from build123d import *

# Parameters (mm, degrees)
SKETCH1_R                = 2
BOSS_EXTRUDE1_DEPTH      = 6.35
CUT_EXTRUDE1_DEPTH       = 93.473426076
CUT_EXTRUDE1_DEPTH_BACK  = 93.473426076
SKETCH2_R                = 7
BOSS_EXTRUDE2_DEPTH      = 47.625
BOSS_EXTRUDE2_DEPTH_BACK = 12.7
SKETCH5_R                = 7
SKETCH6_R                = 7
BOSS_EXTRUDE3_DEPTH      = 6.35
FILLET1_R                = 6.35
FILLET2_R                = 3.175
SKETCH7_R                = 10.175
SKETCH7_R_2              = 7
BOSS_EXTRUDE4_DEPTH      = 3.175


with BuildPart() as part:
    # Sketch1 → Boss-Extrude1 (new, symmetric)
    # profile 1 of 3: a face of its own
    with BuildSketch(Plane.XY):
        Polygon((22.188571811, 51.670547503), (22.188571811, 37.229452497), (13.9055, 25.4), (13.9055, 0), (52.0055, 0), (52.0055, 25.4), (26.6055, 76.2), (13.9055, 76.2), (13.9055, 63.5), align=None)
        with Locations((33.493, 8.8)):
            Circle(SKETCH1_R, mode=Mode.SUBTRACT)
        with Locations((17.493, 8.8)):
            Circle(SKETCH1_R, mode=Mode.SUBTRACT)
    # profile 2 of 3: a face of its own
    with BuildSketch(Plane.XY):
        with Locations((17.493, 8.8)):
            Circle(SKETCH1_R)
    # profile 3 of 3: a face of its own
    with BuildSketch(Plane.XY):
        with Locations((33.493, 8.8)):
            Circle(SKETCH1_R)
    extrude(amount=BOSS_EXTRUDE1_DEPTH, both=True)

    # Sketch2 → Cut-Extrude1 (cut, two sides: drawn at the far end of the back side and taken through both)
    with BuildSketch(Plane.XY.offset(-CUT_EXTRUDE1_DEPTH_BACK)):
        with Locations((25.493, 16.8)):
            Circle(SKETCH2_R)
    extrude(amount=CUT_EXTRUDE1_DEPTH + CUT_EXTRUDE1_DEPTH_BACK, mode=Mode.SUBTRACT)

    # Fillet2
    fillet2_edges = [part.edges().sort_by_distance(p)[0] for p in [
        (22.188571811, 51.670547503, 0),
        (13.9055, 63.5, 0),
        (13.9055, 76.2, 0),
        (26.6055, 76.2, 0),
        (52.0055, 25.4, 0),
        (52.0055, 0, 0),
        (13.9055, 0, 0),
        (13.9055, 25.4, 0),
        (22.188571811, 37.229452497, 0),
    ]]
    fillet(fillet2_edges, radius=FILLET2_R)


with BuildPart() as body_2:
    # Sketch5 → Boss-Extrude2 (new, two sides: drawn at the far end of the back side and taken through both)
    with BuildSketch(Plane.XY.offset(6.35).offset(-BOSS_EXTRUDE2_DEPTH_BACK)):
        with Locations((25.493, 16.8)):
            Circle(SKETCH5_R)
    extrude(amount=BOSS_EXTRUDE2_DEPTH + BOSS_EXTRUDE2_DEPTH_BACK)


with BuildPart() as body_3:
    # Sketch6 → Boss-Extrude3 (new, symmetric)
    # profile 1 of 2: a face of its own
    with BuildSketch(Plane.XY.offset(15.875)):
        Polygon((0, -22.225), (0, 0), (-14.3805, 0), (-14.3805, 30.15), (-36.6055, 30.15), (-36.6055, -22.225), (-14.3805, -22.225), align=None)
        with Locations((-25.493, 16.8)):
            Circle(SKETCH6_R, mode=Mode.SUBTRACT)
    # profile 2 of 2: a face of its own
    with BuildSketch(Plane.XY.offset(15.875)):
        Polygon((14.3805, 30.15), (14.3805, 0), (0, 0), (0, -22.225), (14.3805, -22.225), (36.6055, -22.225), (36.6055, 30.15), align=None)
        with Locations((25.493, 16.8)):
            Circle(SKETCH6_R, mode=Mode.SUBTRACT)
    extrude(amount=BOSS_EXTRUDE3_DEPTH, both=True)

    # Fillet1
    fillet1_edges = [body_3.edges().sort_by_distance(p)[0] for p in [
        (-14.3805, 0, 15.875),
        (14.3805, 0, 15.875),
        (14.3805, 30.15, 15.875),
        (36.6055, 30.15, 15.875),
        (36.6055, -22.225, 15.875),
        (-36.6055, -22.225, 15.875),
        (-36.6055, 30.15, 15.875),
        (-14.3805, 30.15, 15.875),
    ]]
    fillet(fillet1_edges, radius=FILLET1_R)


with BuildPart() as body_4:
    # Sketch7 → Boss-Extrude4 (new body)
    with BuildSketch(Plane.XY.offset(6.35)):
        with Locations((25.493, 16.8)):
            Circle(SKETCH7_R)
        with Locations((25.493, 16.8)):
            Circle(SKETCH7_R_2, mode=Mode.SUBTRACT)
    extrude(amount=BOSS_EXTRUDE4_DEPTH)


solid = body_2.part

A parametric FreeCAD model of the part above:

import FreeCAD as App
import Part
import Sketcher

V = App.Vector
Q = App.Units.Quantity


def edges_at(feature, points):
    """Names of the edges that pass closest to the given points."""
    edges = feature.Shape.Edges
    near = lambda p: min(range(len(edges)), key=lambda i: edges[i].distToShape(Part.Vertex(*p))[0])
    return sorted({f"Edge{near(p) + 1}" for p in points})

doc = App.newDocument("Part")
body = doc.addObject("PartDesign::Body", "Body")

sketch1 = doc.addObject("Sketcher::SketchObject", "Sketch")
body.addObject(sketch1)
sketch1.AttachmentSupport = (doc.XY_Plane, [""])
sketch1.MapMode = "FlatFace"
sketch1.addGeometry([
    Part.LineSegment(V(22, 52, 0), V(22, 37, 0)),
    Part.LineSegment(V(22, 37, 0), V(14, 25, 0)),
    Part.LineSegment(V(14, 25, 0), V(14, 0, 0)),
    Part.LineSegment(V(14, 0, 0), V(52, 0, 0)),
    Part.LineSegment(V(52, 0, 0), V(52, 25, 0)),
    Part.LineSegment(V(52, 25, 0), V(27, 76, 0)),
    Part.LineSegment(V(27, 76, 0), V(14, 76, 0)),
    Part.LineSegment(V(14, 76, 0), V(14, 64, 0)),
    Part.LineSegment(V(14, 64, 0), V(22, 52, 0)),
], False)
sketch1.addConstraint([
    Sketcher.Constraint("Coincident", 0, 2, 1, 1),
    Sketcher.Constraint("Coincident", 1, 2, 2, 1),
    Sketcher.Constraint("Coincident", 2, 2, 3, 1),
    Sketcher.Constraint("Coincident", 3, 2, 4, 1),
    Sketcher.Constraint("Coincident", 4, 2, 5, 1),
    Sketcher.Constraint("Coincident", 5, 2, 6, 1),
    Sketcher.Constraint("Coincident", 6, 2, 7, 1),
    Sketcher.Constraint("Coincident", 7, 2, 8, 1),
    Sketcher.Constraint("Coincident", 8, 2, 0, 1),
    Sketcher.Constraint("Vertical", 0),
    Sketcher.Constraint("Vertical", 2),
    Sketcher.Constraint("Horizontal", 3),
    Sketcher.Constraint("Vertical", 4),
    Sketcher.Constraint("Horizontal", 6),
    Sketcher.Constraint("Vertical", 7),
    Sketcher.Constraint("PointOnObject", 2, 2, -1),
    Sketcher.Constraint("Horizontal", 1, 2, 4, 2),
    Sketcher.Constraint("Vertical", 2, 2, 6, 2),
    Sketcher.Constraint("Equal", 6, 7),
    Sketcher.Constraint("Equal", 1, 8),
    Sketcher.Constraint("DistanceY", 2, 2, 2, 1, Q("1 in")),
    Sketcher.Constraint("DistanceX", 3, 1, 3, 2, Q("1.5 in")),
    Sketcher.Constraint("DistanceX", 6, 2, 6, 1, Q("0.5 in")),
    Sketcher.Constraint("DistanceY", -1, 1, 5, 2, Q("3 in")),
    Sketcher.Constraint("Angle", 1, Q("-125 deg")),
    Sketcher.Constraint("DistanceX", -1, 1, 1, 2, 13.9055),
    Sketcher.Constraint("DistanceY", 0, 2, 0, 1, 14.441095),
])
pad1 = doc.addObject("PartDesign::Pad", "Pad")
body.addObject(pad1)
pad1.Profile = sketch1
pad1.Length = Q("0.5 in")
pad1.Midplane = True

sketch2 = doc.addObject("Sketcher::SketchObject", "Sketch001")
body.addObject(sketch2)
sketch2.AttachmentSupport = (doc.XY_Plane, [""])
sketch2.MapMode = "FlatFace"
sketch2.addGeometry(Part.Circle(V(25, 17, 0), V(0, 0, 1), 7), False)
sketch2.addConstraint([
    Sketcher.Constraint("Diameter", 0, 14.0),
    Sketcher.Constraint("DistanceX", -1, 1, 0, 3, 25.493),
    Sketcher.Constraint("DistanceY", -1, 1, 0, 3, 16.8),
])
pocket1 = doc.addObject("PartDesign::Pocket", "Pocket")
body.addObject(pocket1)
pocket1.Profile = sketch2
pocket1.Type = "ThroughAll"
pocket1.Midplane = True
doc.recompute()

fillet = doc.addObject("PartDesign::Fillet", "Fillet")
body.addObject(fillet)
fillet.Base = (pocket1, edges_at(pocket1, [
    (22.189, 51.671, 0),
    (13.905, 63.5, 0),
    (13.905, 76.2, 0),
    (26.605, 76.2, 0),
    (52.005, 25.4, 0),
    (52.005, 0, 0),
    (13.905, 0, 0),
    (13.905, 25.4, 0),
    (22.189, 37.229, 0),
]))
fillet.Radius = Q("0.125 in")
body2 = doc.addObject("PartDesign::Body", "Body001")

sketch3 = doc.addObject("Sketcher::SketchObject", "Sketch002")
body2.addObject(sketch3)
sketch3.AttachmentSupport = (doc.getObject("XY_Plane001"), [""])
sketch3.MapMode = "FlatFace"
sketch3.AttachmentOffset = App.Placement(V(0, 0, 0.25 * 25.4), App.Rotation())
sketch3.addGeometry(Part.Circle(V(25, 17, 0), V(0, 0, 1), 7), False)
sketch3.addConstraint([
    Sketcher.Constraint("Diameter", 0, 14.0),
    Sketcher.Constraint("DistanceX", -1, 1, 0, 3, 25.493),
    Sketcher.Constraint("DistanceY", -1, 1, 0, 3, 16.8),
])
pad2 = doc.addObject("PartDesign::Pad", "Pad001")
body2.addObject(pad2)
pad2.Profile = sketch3
pad2.Type = "TwoLengths"
pad2.Length = Q("1.875 in")
pad2.Length2 = Q("0.5 in")
body3 = doc.addObject("PartDesign::Body", "Body002")

sketch4 = doc.addObject("Sketcher::SketchObject", "Sketch003")
body3.addObject(sketch4)
sketch4.AttachmentSupport = (doc.getObject("XY_Plane002"), [""])
sketch4.MapMode = "FlatFace"
sketch4.AttachmentOffset = App.Placement(V(0, 0, 0.625 * 25.4), App.Rotation())
sketch4.addGeometry([
    Part.LineSegment(V(-37, -22, 0), V(37, -22, 0)),
    Part.LineSegment(V(37, -22, 0), V(37, 30, 0)),
    Part.LineSegment(V(37, 30, 0), V(14, 30, 0)),
    Part.LineSegment(V(14, 30, 0), V(14, 0, 0)),
    Part.LineSegment(V(14, 0, 0), V(-14, 0, 0)),
    Part.LineSegment(V(-14, 0, 0), V(-14, 30, 0)),
    Part.LineSegment(V(-14, 30, 0), V(-37, 30, 0)),
    Part.LineSegment(V(-37, 30, 0), V(-37, -22, 0)),
    Part.Circle(V(-25, 17, 0), V(0, 0, 1), 7),
    Part.Circle(V(25, 17, 0), V(0, 0, 1), 7),
], False)
sketch4.addConstraint([
    Sketcher.Constraint("Coincident", 0, 2, 1, 1),
    Sketcher.Constraint("Coincident", 1, 2, 2, 1),
    Sketcher.Constraint("Coincident", 2, 2, 3, 1),
    Sketcher.Constraint("Coincident", 3, 2, 4, 1),
    Sketcher.Constraint("Coincident", 4, 2, 5, 1),
    Sketcher.Constraint("Coincident", 5, 2, 6, 1),
    Sketcher.Constraint("Coincident", 6, 2, 7, 1),
    Sketcher.Constraint("Coincident", 7, 2, 0, 1),
    Sketcher.Constraint("Horizontal", 0),
    Sketcher.Constraint("Vertical", 1),
    Sketcher.Constraint("Horizontal", 2),
    Sketcher.Constraint("Vertical", 3),
    Sketcher.Constraint("Horizontal", 4),
    Sketcher.Constraint("Vertical", 5),
    Sketcher.Constraint("Horizontal", 6),
    Sketcher.Constraint("Vertical", 7),
    Sketcher.Constraint("Equal", 8, 9),
    Sketcher.Constraint("Symmetric", 3, 2, 4, 2, -1, 1),
    Sketcher.Constraint("Symmetric", 8, 3, 9, 3, -2),
    Sketcher.Constraint("Symmetric", 1, 2, 6, 2, -2),
    Sketcher.Constraint("Diameter", 8, 14.0),
    Sketcher.Constraint("DistanceX", 2, 2, 2, 1, Q("0.875 in")),
    Sketcher.Constraint("DistanceY", 0, 2, -1, 1, Q("0.875 in")),
    Sketcher.Constraint("DistanceX", 9, 3, 0, 2, Q("0.4375 in")),
    Sketcher.Constraint("DistanceX", 0, 1, 0, 2, 73.211),
    Sketcher.Constraint("DistanceY", 1, 1, 1, 2, 52.375),
    Sketcher.Constraint("DistanceY", -1, 1, 8, 3, 16.8),
])
pad3 = doc.addObject("PartDesign::Pad", "Pad002")
body3.addObject(pad3)
pad3.Profile = sketch4
pad3.Length = Q("0.5 in")
pad3.Midplane = True
doc.recompute()

fillet2 = doc.addObject("PartDesign::Fillet", "Fillet001")
body3.addObject(fillet2)
fillet2.Base = (pad3, edges_at(pad3, [
    (-14.38, 0, 15.875),
    (14.38, 0, 15.875),
    (14.38, 30.15, 15.875),
    (36.605, 30.15, 15.875),
    (36.605, -22.225, 15.875),
    (-36.605, -22.225, 15.875),
    (-36.605, 30.15, 15.875),
    (-14.38, 30.15, 15.875),
]))
fillet2.Radius = Q("0.25 in")
body4 = doc.addObject("PartDesign::Body", "Body003")

sketch5 = doc.addObject("Sketcher::SketchObject", "Sketch004")
body4.addObject(sketch5)
sketch5.AttachmentSupport = (doc.getObject("XY_Plane003"), [""])
sketch5.MapMode = "FlatFace"
sketch5.AttachmentOffset = App.Placement(V(0, 0, 0.25 * 25.4), App.Rotation())
sketch5.addGeometry([
    Part.Circle(V(25, 17, 0), V(0, 0, 1), 10),
    Part.Circle(V(25, 17, 0), V(0, 0, 1), 7),
], False)
sketch5.addConstraint([
    Sketcher.Constraint("Coincident", 1, 3, 0, 3),
    Sketcher.Constraint("Diameter", 0, 20.35),
    Sketcher.Constraint("Diameter", 1, 14.0),
    Sketcher.Constraint("DistanceX", -1, 1, 0, 3, 25.493),
    Sketcher.Constraint("DistanceY", -1, 1, 0, 3, 16.8),
])
pad4 = doc.addObject("PartDesign::Pad", "Pad003")
body4.addObject(pad4)
pad4.Profile = sketch5
pad4.Length = Q("0.125 in")
body.Visibility = False
body3.Visibility = False
body4.Visibility = False

doc.recompute()
